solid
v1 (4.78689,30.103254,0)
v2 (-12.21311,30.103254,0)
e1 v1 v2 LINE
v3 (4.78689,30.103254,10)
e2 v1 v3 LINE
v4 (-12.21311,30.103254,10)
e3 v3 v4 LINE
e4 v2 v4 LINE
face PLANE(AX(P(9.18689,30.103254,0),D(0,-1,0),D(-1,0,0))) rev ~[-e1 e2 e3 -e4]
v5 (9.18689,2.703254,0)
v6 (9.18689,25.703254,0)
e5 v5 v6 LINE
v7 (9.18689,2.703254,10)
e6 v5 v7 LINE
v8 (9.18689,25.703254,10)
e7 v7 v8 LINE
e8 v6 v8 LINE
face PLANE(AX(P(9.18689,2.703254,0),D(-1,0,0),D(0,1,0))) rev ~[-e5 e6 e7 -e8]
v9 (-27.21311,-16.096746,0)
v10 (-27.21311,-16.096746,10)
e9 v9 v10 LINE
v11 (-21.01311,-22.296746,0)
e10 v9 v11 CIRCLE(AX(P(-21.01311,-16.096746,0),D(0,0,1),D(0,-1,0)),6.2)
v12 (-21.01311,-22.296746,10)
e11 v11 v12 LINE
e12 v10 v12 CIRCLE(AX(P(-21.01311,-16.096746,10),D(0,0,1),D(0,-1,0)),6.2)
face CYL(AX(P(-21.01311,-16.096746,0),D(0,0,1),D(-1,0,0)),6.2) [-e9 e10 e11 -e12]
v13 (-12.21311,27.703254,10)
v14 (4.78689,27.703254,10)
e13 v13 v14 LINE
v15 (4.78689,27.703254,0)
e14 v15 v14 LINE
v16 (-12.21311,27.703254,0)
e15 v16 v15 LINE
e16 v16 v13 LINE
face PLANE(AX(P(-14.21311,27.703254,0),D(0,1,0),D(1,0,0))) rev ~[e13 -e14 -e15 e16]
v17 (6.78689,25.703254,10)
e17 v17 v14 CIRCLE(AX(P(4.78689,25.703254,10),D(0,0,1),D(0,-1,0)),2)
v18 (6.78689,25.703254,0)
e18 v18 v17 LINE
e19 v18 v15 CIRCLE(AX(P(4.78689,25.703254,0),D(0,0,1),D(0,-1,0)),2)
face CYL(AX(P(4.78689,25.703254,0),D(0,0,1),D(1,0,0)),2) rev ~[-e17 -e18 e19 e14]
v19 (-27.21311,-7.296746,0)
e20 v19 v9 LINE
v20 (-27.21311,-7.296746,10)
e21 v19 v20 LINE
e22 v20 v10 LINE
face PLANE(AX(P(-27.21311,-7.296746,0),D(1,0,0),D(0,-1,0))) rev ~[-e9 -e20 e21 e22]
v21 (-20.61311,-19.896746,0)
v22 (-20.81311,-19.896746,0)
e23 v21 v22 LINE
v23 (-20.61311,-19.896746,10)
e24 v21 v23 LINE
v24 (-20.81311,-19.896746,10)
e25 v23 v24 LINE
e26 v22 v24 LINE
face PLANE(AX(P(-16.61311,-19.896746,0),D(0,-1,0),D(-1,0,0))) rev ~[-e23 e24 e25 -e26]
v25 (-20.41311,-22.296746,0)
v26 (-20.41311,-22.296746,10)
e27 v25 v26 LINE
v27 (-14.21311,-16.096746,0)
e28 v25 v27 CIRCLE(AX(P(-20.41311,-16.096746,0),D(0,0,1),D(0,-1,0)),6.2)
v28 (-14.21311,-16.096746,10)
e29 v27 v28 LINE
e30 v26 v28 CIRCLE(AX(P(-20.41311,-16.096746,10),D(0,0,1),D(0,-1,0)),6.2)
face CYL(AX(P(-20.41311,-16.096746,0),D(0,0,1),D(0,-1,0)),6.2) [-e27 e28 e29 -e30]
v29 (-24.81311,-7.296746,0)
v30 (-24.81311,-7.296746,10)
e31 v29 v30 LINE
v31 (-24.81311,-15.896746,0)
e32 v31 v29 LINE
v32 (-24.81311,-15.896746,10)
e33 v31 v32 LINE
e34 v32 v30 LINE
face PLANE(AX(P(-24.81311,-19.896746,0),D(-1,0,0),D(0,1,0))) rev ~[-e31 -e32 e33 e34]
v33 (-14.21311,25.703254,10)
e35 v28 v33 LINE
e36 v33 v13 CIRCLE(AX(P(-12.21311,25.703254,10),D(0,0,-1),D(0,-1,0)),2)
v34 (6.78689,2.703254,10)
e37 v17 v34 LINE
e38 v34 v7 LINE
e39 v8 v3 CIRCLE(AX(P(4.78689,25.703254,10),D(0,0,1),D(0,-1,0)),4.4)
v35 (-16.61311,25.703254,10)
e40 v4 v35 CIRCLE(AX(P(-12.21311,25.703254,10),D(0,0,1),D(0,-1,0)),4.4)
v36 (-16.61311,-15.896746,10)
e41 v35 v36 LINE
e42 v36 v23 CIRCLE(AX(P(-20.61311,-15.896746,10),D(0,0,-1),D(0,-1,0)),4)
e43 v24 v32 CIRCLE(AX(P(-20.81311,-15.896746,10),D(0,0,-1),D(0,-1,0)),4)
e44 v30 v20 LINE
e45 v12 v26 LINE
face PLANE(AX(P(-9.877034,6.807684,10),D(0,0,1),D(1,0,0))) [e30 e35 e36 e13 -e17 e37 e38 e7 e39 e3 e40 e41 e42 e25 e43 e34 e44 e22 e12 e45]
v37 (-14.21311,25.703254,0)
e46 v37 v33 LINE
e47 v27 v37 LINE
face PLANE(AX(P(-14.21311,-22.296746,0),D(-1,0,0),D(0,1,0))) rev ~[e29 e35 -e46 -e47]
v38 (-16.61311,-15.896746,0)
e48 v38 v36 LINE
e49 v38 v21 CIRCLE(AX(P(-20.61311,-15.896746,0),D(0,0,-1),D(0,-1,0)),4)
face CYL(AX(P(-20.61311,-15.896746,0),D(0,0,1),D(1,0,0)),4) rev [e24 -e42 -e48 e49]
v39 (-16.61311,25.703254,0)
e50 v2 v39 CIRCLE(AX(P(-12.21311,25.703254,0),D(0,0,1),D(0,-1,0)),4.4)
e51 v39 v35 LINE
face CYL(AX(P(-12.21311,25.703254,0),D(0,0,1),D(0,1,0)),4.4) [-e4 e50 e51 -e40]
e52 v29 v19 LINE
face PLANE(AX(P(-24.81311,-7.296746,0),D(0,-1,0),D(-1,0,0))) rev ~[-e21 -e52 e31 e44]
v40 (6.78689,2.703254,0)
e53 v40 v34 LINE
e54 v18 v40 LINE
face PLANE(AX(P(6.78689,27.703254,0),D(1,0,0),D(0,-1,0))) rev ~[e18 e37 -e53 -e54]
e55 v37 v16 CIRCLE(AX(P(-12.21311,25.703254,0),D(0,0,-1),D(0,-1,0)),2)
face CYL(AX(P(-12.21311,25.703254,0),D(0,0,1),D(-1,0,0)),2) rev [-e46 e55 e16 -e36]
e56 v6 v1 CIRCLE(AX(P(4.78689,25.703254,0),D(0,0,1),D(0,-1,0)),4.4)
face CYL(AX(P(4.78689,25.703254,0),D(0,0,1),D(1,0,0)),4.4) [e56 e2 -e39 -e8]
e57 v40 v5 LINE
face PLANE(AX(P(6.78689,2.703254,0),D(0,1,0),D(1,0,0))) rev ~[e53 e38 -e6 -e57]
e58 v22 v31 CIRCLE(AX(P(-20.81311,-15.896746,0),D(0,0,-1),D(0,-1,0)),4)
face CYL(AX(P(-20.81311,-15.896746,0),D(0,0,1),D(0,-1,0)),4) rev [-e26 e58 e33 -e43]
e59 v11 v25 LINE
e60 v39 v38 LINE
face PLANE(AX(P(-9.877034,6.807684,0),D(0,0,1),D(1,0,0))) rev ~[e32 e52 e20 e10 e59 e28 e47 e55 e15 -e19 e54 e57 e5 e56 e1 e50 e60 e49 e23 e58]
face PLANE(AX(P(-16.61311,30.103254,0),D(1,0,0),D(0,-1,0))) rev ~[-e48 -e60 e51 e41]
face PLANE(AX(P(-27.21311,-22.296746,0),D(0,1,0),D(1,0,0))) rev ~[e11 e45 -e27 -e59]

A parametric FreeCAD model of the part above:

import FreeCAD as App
import Part
import Sketcher


def edges_at(feature, points):
    """Names of the edges that pass closest to the given points."""
    edges = feature.Shape.Edges
    near = lambda p: min(range(len(edges)), key=lambda i: edges[i].distToShape(Part.Vertex(*p))[0])
    return sorted({f"Edge{near(p) + 1}" for p in points})


def add_polygon(sketch, points):
    """Adds a closed chain of lines whose ends are joined by coincident constraints."""
    first, n = sketch.GeometryCount, len(points)
    for a, b in zip(points, points[1:] + points[:1]):
        sketch.addGeometry(Part.LineSegment(App.Vector(*a, 0), App.Vector(*b, 0)), False)
    for i in range(n):
        sketch.addConstraint(Sketcher.Constraint("Coincident", first + i, 2, first + (i + 1) % n, 1))

doc = App.newDocument("Part")
body = doc.addObject("PartDesign::Body", "Body")

sketch1 = doc.addObject("Sketcher::SketchObject", "Sketch")
body.addObject(sketch1)
sketch1.AttachmentSupport = (doc.XY_Plane, [""])
sketch1.MapMode = "FlatFace"
add_polygon(sketch1, [(6.8, 27.7), (6.8, 2.7), (9.2, 2.7), (9.2, 30.1), (-16.6, 30.1), (-16.6, -19.9), (-24.8, -19.9), (-24.8, -7.3), (-27.2, -7.3), (-27.2, -22.3), (-14.2, -22.3), (-14.2, 27.7)])
sketch1.addConstraint(Sketcher.Constraint("Vertical", 0))
sketch1.addConstraint(Sketcher.Constraint("Horizontal", 1))
sketch1.addConstraint(Sketcher.Constraint("Vertical", 2))
sketch1.addConstraint(Sketcher.Constraint("Horizontal", 3))
sketch1.addConstraint(Sketcher.Constraint("Vertical", 4))
sketch1.addConstraint(Sketcher.Constraint("Horizontal", 5))
sketch1.addConstraint(Sketcher.Constraint("Vertical", 6))
sketch1.addConstraint(Sketcher.Constraint("Horizontal", 7))
sketch1.addConstraint(Sketcher.Constraint("Vertical", 8))
sketch1.addConstraint(Sketcher.Constraint("Horizontal", 9))
sketch1.addConstraint(Sketcher.Constraint("Vertical", 10))
sketch1.addConstraint(Sketcher.Constraint("Horizontal", 11))
sketch1.addConstraint(Sketcher.Constraint("Equal", 1, 7))
sketch1.addConstraint(Sketcher.Constraint("Equal", 4, 10))
sketch1.addConstraint(Sketcher.Constraint("DistanceX", 9, 1, 9, 2, 13.0))
sketch1.addConstraint(Sketcher.Constraint("DistanceX", 11, 1, 11, 2, 21.0))
sketch1.addConstraint(Sketcher.Constraint("DistanceY", 0, 2, 0, 1, 25.0))
sketch1.addConstraint(Sketcher.Constraint("DistanceY", 4, 2, 4, 1, 50.0))
sketch1.addConstraint(Sketcher.Constraint("DistanceY", 8, 2, 8, 1, 15.0))
sketch1.addConstraint(Sketcher.Constraint("DistanceX", 1, 1, 1, 2, 2.4))
sketch1.addConstraint(Sketcher.Constraint("DistanceX", 3, 2, 3, 1, 25.8))
sketch1.addConstraint(Sketcher.Constraint("DistanceY", 2, 1, 2, 2, 27.4))
sketch1.addConstraint(Sketcher.Constraint("DistanceX", -1, 1, 0, 2, 6.78689))
sketch1.addConstraint(Sketcher.Constraint("DistanceY", -1, 1, 0, 2, 2.703254))
pad1 = doc.addObject("PartDesign::Pad", "Pad")
body.addObject(pad1)
pad1.Profile = sketch1
pad1.Length = 10
doc.recompute()

fillet = doc.addObject("PartDesign::Fillet", "Fillet")
body.addObject(fillet)
fillet.Base = (pad1, edges_at(pad1, [(-14.213, 27.703, 5), (6.787, 27.703, 5)]))
fillet.Radius = 2
doc.recompute()

fillet2 = doc.addObject("PartDesign::Fillet", "Fillet001")
body.addObject(fillet2)
fillet2.Base = (fillet, edges_at(fillet, [(-16.613, 30.103, 5), (9.187, 30.103, 5)]))
fillet2.Radius = 4.4
doc.recompute()

fillet3 = doc.addObject("PartDesign::Fillet", "Fillet002")
body.addObject(fillet3)
fillet3.Base = (fillet2, edges_at(fillet2, [(-24.813, -19.897, 5), (-16.613, -19.897, 5)]))
fillet3.Radius = 4
doc.recompute()

fillet4 = doc.addObject("PartDesign::Fillet", "Fillet003")
body.addObject(fillet4)
fillet4.Base = (fillet3, edges_at(fillet3, [(-27.213, -22.297, 5), (-14.213, -22.297, 5)]))
fillet4.Radius = 6.2

doc.recompute()
